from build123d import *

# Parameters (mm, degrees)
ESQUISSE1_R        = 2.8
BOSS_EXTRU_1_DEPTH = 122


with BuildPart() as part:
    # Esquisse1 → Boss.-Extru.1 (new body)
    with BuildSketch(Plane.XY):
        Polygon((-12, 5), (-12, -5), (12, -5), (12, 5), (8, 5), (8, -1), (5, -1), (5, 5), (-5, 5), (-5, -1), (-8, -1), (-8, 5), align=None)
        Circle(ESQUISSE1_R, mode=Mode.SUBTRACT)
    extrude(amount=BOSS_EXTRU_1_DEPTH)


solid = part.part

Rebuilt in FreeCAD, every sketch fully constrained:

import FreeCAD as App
import Part
import Sketcher
from FreeCAD import Vector


def add_polygon(sketch, points):
    """Adds a closed chain of lines whose ends are joined by coincident constraints."""
    first, n = sketch.GeometryCount, len(points)
    for a, b in zip(points, points[1:] + points[:1]):
        sketch.addGeometry(Part.LineSegment(App.Vector(*a, 0), App.Vector(*b, 0)), False)
    for i in range(n):
        sketch.addConstraint(Sketcher.Constraint("Coincident", first + i, 2, first + (i + 1) % n, 1))

doc = App.newDocument("Part")
body = doc.addObject("PartDesign::Body", "Body")

# Sketch on XY plane
sketch1 = body.newObject("Sketcher::SketchObject", "Sketch")
sketch1.AttachmentSupport = (doc.getObject("XY_Plane"), [""])
sketch1.MapMode = "FlatFace"
add_polygon(sketch1, [(-12, 5), (-12, -5), (12, -5), (12, 5), (8, 5), (8, -1), (5, -1), (5, 5), (-5, 5), (-5, -1), (-8, -1), (-8, 5)])  # lines 0-11
sketch1.addGeometry(Part.Circle(Vector(0, 0, 0), Vector(0, 0, 1), 2.8), False)  # 12
sketch1.addConstraint(Sketcher.Constraint("Vertical", 0))
sketch1.addConstraint(Sketcher.Constraint("Horizontal", 1))
sketch1.addConstraint(Sketcher.Constraint("Vertical", 2))
sketch1.addConstraint(Sketcher.Constraint("Horizontal", 3))
sketch1.addConstraint(Sketcher.Constraint("Vertical", 4))
sketch1.addConstraint(Sketcher.Constraint("Horizontal", 5))
sketch1.addConstraint(Sketcher.Constraint("Vertical", 6))
sketch1.addConstraint(Sketcher.Constraint("Horizontal", 7))
sketch1.addConstraint(Sketcher.Constraint("Vertical", 8))
sketch1.addConstraint(Sketcher.Constraint("Horizontal", 9))
sketch1.addConstraint(Sketcher.Constraint("Vertical", 10))
sketch1.addConstraint(Sketcher.Constraint("Horizontal", 11))
sketch1.addConstraint(Sketcher.Constraint("Coincident", 12, 3, -1, 1))
sketch1.addConstraint(Sketcher.Constraint("Symmetric", 0, 2, 2, 2, -1, 1))
sketch1.addConstraint(Sketcher.Constraint("Symmetric", 5, 2, 8, 2, -2))
sketch1.addConstraint(Sketcher.Constraint("Symmetric", 3, 2, 10, 2, -2))
sketch1.addConstraint(Sketcher.Constraint("Horizontal", 3, 2, 6, 2))
sketch1.addConstraint(Sketcher.Constraint("Equal", 7, 0))
sketch1.addConstraint(Sketcher.Constraint("Diameter", 12, 5.6))
sketch1.addConstraint(Sketcher.Constraint("DistanceX", 1, 1, 1, 2, 24.0))
sketch1.addConstraint(Sketcher.Constraint("DistanceX", 3, 2, 3, 1, 4.0))
sketch1.addConstraint(Sketcher.Constraint("DistanceX", 5, 2, 5, 1, 3.0))
sketch1.addConstraint(Sketcher.Constraint("DistanceY", 4, 2, 4, 1, 6.0))
pad1 = body.newObject("PartDesign::Pad", "Pad")
pad1.Profile = sketch1
pad1.Length = 122

doc.recompute()
